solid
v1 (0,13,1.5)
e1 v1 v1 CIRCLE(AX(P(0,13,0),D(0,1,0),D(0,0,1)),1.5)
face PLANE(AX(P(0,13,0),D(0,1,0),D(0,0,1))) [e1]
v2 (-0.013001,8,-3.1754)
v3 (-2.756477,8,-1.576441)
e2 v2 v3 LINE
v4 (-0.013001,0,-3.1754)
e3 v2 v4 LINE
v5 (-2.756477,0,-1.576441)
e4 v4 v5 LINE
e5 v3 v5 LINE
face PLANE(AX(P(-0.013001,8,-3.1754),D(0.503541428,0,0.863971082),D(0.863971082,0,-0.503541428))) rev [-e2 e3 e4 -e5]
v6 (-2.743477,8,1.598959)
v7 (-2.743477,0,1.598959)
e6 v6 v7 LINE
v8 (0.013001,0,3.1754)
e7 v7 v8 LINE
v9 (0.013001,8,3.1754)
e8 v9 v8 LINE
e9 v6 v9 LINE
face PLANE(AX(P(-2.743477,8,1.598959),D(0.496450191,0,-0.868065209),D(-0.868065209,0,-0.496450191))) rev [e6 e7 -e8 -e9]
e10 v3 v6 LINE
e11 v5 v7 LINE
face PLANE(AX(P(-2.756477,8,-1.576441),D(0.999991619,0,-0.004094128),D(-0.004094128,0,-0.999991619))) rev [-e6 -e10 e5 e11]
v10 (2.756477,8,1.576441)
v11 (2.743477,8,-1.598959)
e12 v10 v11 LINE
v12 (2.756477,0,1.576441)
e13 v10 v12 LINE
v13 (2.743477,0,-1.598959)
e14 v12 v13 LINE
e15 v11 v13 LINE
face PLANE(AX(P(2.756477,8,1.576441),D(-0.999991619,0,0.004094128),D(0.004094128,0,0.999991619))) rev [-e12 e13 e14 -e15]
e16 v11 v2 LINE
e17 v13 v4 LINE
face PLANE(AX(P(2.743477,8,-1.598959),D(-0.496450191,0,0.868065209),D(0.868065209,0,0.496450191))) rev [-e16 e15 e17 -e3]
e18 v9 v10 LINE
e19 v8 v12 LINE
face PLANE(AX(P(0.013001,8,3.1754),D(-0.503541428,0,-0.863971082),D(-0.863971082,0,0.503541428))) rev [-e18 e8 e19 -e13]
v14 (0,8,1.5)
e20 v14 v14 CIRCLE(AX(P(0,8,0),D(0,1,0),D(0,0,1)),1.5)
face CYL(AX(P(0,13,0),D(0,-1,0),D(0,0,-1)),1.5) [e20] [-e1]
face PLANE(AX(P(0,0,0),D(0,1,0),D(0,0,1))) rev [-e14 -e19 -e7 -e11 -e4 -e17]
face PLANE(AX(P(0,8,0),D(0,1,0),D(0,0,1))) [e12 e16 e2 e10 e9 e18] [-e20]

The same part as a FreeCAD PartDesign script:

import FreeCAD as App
import Part
import Sketcher


def add_polygon(sketch, points):
    """Adds a closed chain of lines whose ends are joined by coincident constraints."""
    first, n = sketch.GeometryCount, len(points)
    for a, b in zip(points, points[1:] + points[:1]):
        sketch.addGeometry(Part.LineSegment(App.Vector(*a, 0), App.Vector(*b, 0)), False)
    for i in range(n):
        sketch.addConstraint(Sketcher.Constraint("Coincident", first + i, 2, first + (i + 1) % n, 1))

doc = App.newDocument("Part")
body = doc.addObject("PartDesign::Body", "Body")

sketch1 = body.newObject("Sketcher::SketchObject", "Sketch")
sketch1.AttachmentSupport = (doc.getObject("XZ_Plane"), [""])
sketch1.MapMode = "FlatFace"
add_polygon(sketch1, [(2.7, -1.6), (0, -3.2), (-2.8, -1.6), (-2.7, 1.6), (0, 3.2), (2.8, 1.6)])
sketch1.addConstraint(Sketcher.Constraint("Symmetric", 0, 2, 3, 2, -1, 1))
sketch1.addConstraint(Sketcher.Constraint("Symmetric", 1, 2, 4, 2, -1, 1))
sketch1.addConstraint(Sketcher.Constraint("Symmetric", 2, 2, 5, 2, -1, 1))
sketch1.addConstraint(Sketcher.Constraint("Equal", 0, 1))
sketch1.addConstraint(Sketcher.Constraint("Equal", 1, 2))
sketch1.addConstraint(Sketcher.Constraint("DistanceX", 0, 2, -1, 1, 0.013001))
sketch1.addConstraint(Sketcher.Constraint("DistanceX", 1, 2, 2, 2, 0.013001))
sketch1.addConstraint(Sketcher.Constraint("DistanceY", 0, 2, -1, 1, 3.1754))
sketch1.addConstraint(Sketcher.Constraint("DistanceY", 1, 2, 2, 2, 3.1754))
pad1 = body.newObject("PartDesign::Pad", "Pad")
pad1.Profile = sketch1
pad1.Length = 8
pad1.Reversed = True

sketch2 = body.newObject("Sketcher::SketchObject", "Sketch001")
sketch2.AttachmentSupport = (doc.getObject("XZ_Plane"), [""])
sketch2.MapMode = "FlatFace"
sketch2.AttachmentOffset = App.Placement(App.Vector(0, 0, -8), App.Rotation())
sketch2.addGeometry(Part.Circle(App.Vector(0, 0, 0), App.Vector(0, 0, 1), 1.5), False)
sketch2.addConstraint(Sketcher.Constraint("Coincident", 0, 3, -1, 1))
sketch2.addConstraint(Sketcher.Constraint("Diameter", 0, 3.0))
pad2 = body.newObject("PartDesign::Pad", "Pad001")
pad2.Profile = sketch2
pad2.Length = 5
pad2.Reversed = True

doc.recompute()
